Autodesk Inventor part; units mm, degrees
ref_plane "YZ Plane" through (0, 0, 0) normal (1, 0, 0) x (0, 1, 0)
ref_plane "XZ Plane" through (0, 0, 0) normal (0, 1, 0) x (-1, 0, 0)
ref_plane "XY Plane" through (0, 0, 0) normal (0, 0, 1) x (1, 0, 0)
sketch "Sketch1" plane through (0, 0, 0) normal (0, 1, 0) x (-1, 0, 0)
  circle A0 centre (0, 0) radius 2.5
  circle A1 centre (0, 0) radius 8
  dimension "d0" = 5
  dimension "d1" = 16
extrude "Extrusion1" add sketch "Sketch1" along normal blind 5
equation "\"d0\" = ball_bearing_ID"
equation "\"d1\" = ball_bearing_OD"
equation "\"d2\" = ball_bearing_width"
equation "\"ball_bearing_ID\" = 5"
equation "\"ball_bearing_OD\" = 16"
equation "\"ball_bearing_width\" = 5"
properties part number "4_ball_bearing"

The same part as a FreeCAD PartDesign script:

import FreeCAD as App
import Part
import Sketcher

V = App.Vector

doc = App.newDocument("Part")
body = doc.addObject("PartDesign::Body", "Body")

sketch1 = doc.addObject("Sketcher::SketchObject", "Sketch")
body.addObject(sketch1)
sketch1.AttachmentSupport = (doc.XZ_Plane, [""])
sketch1.MapMode = "FlatFace"
sketch1.addGeometry(Part.Circle(V(0, 0, 0), V(0, 0, 1), 8), False)
sketch1.addGeometry(Part.Circle(V(0, 0, 0), V(0, 0, 1), 2.5), False)
sketch1.addConstraint(Sketcher.Constraint("Coincident", 0, 3, -1, 1))
sketch1.addConstraint(Sketcher.Constraint("Coincident", 1, 3, -1, 1))
sketch1.addConstraint(Sketcher.Constraint("Diameter", 0, 16.0))
sketch1.addConstraint(Sketcher.Constraint("Diameter", 1, 5.0))
pad1 = doc.addObject("PartDesign::Pad", "Pad")
body.addObject(pad1)
pad1.Profile = sketch1
pad1.Length = 5
pad1.Reversed = True

doc.recompute()
